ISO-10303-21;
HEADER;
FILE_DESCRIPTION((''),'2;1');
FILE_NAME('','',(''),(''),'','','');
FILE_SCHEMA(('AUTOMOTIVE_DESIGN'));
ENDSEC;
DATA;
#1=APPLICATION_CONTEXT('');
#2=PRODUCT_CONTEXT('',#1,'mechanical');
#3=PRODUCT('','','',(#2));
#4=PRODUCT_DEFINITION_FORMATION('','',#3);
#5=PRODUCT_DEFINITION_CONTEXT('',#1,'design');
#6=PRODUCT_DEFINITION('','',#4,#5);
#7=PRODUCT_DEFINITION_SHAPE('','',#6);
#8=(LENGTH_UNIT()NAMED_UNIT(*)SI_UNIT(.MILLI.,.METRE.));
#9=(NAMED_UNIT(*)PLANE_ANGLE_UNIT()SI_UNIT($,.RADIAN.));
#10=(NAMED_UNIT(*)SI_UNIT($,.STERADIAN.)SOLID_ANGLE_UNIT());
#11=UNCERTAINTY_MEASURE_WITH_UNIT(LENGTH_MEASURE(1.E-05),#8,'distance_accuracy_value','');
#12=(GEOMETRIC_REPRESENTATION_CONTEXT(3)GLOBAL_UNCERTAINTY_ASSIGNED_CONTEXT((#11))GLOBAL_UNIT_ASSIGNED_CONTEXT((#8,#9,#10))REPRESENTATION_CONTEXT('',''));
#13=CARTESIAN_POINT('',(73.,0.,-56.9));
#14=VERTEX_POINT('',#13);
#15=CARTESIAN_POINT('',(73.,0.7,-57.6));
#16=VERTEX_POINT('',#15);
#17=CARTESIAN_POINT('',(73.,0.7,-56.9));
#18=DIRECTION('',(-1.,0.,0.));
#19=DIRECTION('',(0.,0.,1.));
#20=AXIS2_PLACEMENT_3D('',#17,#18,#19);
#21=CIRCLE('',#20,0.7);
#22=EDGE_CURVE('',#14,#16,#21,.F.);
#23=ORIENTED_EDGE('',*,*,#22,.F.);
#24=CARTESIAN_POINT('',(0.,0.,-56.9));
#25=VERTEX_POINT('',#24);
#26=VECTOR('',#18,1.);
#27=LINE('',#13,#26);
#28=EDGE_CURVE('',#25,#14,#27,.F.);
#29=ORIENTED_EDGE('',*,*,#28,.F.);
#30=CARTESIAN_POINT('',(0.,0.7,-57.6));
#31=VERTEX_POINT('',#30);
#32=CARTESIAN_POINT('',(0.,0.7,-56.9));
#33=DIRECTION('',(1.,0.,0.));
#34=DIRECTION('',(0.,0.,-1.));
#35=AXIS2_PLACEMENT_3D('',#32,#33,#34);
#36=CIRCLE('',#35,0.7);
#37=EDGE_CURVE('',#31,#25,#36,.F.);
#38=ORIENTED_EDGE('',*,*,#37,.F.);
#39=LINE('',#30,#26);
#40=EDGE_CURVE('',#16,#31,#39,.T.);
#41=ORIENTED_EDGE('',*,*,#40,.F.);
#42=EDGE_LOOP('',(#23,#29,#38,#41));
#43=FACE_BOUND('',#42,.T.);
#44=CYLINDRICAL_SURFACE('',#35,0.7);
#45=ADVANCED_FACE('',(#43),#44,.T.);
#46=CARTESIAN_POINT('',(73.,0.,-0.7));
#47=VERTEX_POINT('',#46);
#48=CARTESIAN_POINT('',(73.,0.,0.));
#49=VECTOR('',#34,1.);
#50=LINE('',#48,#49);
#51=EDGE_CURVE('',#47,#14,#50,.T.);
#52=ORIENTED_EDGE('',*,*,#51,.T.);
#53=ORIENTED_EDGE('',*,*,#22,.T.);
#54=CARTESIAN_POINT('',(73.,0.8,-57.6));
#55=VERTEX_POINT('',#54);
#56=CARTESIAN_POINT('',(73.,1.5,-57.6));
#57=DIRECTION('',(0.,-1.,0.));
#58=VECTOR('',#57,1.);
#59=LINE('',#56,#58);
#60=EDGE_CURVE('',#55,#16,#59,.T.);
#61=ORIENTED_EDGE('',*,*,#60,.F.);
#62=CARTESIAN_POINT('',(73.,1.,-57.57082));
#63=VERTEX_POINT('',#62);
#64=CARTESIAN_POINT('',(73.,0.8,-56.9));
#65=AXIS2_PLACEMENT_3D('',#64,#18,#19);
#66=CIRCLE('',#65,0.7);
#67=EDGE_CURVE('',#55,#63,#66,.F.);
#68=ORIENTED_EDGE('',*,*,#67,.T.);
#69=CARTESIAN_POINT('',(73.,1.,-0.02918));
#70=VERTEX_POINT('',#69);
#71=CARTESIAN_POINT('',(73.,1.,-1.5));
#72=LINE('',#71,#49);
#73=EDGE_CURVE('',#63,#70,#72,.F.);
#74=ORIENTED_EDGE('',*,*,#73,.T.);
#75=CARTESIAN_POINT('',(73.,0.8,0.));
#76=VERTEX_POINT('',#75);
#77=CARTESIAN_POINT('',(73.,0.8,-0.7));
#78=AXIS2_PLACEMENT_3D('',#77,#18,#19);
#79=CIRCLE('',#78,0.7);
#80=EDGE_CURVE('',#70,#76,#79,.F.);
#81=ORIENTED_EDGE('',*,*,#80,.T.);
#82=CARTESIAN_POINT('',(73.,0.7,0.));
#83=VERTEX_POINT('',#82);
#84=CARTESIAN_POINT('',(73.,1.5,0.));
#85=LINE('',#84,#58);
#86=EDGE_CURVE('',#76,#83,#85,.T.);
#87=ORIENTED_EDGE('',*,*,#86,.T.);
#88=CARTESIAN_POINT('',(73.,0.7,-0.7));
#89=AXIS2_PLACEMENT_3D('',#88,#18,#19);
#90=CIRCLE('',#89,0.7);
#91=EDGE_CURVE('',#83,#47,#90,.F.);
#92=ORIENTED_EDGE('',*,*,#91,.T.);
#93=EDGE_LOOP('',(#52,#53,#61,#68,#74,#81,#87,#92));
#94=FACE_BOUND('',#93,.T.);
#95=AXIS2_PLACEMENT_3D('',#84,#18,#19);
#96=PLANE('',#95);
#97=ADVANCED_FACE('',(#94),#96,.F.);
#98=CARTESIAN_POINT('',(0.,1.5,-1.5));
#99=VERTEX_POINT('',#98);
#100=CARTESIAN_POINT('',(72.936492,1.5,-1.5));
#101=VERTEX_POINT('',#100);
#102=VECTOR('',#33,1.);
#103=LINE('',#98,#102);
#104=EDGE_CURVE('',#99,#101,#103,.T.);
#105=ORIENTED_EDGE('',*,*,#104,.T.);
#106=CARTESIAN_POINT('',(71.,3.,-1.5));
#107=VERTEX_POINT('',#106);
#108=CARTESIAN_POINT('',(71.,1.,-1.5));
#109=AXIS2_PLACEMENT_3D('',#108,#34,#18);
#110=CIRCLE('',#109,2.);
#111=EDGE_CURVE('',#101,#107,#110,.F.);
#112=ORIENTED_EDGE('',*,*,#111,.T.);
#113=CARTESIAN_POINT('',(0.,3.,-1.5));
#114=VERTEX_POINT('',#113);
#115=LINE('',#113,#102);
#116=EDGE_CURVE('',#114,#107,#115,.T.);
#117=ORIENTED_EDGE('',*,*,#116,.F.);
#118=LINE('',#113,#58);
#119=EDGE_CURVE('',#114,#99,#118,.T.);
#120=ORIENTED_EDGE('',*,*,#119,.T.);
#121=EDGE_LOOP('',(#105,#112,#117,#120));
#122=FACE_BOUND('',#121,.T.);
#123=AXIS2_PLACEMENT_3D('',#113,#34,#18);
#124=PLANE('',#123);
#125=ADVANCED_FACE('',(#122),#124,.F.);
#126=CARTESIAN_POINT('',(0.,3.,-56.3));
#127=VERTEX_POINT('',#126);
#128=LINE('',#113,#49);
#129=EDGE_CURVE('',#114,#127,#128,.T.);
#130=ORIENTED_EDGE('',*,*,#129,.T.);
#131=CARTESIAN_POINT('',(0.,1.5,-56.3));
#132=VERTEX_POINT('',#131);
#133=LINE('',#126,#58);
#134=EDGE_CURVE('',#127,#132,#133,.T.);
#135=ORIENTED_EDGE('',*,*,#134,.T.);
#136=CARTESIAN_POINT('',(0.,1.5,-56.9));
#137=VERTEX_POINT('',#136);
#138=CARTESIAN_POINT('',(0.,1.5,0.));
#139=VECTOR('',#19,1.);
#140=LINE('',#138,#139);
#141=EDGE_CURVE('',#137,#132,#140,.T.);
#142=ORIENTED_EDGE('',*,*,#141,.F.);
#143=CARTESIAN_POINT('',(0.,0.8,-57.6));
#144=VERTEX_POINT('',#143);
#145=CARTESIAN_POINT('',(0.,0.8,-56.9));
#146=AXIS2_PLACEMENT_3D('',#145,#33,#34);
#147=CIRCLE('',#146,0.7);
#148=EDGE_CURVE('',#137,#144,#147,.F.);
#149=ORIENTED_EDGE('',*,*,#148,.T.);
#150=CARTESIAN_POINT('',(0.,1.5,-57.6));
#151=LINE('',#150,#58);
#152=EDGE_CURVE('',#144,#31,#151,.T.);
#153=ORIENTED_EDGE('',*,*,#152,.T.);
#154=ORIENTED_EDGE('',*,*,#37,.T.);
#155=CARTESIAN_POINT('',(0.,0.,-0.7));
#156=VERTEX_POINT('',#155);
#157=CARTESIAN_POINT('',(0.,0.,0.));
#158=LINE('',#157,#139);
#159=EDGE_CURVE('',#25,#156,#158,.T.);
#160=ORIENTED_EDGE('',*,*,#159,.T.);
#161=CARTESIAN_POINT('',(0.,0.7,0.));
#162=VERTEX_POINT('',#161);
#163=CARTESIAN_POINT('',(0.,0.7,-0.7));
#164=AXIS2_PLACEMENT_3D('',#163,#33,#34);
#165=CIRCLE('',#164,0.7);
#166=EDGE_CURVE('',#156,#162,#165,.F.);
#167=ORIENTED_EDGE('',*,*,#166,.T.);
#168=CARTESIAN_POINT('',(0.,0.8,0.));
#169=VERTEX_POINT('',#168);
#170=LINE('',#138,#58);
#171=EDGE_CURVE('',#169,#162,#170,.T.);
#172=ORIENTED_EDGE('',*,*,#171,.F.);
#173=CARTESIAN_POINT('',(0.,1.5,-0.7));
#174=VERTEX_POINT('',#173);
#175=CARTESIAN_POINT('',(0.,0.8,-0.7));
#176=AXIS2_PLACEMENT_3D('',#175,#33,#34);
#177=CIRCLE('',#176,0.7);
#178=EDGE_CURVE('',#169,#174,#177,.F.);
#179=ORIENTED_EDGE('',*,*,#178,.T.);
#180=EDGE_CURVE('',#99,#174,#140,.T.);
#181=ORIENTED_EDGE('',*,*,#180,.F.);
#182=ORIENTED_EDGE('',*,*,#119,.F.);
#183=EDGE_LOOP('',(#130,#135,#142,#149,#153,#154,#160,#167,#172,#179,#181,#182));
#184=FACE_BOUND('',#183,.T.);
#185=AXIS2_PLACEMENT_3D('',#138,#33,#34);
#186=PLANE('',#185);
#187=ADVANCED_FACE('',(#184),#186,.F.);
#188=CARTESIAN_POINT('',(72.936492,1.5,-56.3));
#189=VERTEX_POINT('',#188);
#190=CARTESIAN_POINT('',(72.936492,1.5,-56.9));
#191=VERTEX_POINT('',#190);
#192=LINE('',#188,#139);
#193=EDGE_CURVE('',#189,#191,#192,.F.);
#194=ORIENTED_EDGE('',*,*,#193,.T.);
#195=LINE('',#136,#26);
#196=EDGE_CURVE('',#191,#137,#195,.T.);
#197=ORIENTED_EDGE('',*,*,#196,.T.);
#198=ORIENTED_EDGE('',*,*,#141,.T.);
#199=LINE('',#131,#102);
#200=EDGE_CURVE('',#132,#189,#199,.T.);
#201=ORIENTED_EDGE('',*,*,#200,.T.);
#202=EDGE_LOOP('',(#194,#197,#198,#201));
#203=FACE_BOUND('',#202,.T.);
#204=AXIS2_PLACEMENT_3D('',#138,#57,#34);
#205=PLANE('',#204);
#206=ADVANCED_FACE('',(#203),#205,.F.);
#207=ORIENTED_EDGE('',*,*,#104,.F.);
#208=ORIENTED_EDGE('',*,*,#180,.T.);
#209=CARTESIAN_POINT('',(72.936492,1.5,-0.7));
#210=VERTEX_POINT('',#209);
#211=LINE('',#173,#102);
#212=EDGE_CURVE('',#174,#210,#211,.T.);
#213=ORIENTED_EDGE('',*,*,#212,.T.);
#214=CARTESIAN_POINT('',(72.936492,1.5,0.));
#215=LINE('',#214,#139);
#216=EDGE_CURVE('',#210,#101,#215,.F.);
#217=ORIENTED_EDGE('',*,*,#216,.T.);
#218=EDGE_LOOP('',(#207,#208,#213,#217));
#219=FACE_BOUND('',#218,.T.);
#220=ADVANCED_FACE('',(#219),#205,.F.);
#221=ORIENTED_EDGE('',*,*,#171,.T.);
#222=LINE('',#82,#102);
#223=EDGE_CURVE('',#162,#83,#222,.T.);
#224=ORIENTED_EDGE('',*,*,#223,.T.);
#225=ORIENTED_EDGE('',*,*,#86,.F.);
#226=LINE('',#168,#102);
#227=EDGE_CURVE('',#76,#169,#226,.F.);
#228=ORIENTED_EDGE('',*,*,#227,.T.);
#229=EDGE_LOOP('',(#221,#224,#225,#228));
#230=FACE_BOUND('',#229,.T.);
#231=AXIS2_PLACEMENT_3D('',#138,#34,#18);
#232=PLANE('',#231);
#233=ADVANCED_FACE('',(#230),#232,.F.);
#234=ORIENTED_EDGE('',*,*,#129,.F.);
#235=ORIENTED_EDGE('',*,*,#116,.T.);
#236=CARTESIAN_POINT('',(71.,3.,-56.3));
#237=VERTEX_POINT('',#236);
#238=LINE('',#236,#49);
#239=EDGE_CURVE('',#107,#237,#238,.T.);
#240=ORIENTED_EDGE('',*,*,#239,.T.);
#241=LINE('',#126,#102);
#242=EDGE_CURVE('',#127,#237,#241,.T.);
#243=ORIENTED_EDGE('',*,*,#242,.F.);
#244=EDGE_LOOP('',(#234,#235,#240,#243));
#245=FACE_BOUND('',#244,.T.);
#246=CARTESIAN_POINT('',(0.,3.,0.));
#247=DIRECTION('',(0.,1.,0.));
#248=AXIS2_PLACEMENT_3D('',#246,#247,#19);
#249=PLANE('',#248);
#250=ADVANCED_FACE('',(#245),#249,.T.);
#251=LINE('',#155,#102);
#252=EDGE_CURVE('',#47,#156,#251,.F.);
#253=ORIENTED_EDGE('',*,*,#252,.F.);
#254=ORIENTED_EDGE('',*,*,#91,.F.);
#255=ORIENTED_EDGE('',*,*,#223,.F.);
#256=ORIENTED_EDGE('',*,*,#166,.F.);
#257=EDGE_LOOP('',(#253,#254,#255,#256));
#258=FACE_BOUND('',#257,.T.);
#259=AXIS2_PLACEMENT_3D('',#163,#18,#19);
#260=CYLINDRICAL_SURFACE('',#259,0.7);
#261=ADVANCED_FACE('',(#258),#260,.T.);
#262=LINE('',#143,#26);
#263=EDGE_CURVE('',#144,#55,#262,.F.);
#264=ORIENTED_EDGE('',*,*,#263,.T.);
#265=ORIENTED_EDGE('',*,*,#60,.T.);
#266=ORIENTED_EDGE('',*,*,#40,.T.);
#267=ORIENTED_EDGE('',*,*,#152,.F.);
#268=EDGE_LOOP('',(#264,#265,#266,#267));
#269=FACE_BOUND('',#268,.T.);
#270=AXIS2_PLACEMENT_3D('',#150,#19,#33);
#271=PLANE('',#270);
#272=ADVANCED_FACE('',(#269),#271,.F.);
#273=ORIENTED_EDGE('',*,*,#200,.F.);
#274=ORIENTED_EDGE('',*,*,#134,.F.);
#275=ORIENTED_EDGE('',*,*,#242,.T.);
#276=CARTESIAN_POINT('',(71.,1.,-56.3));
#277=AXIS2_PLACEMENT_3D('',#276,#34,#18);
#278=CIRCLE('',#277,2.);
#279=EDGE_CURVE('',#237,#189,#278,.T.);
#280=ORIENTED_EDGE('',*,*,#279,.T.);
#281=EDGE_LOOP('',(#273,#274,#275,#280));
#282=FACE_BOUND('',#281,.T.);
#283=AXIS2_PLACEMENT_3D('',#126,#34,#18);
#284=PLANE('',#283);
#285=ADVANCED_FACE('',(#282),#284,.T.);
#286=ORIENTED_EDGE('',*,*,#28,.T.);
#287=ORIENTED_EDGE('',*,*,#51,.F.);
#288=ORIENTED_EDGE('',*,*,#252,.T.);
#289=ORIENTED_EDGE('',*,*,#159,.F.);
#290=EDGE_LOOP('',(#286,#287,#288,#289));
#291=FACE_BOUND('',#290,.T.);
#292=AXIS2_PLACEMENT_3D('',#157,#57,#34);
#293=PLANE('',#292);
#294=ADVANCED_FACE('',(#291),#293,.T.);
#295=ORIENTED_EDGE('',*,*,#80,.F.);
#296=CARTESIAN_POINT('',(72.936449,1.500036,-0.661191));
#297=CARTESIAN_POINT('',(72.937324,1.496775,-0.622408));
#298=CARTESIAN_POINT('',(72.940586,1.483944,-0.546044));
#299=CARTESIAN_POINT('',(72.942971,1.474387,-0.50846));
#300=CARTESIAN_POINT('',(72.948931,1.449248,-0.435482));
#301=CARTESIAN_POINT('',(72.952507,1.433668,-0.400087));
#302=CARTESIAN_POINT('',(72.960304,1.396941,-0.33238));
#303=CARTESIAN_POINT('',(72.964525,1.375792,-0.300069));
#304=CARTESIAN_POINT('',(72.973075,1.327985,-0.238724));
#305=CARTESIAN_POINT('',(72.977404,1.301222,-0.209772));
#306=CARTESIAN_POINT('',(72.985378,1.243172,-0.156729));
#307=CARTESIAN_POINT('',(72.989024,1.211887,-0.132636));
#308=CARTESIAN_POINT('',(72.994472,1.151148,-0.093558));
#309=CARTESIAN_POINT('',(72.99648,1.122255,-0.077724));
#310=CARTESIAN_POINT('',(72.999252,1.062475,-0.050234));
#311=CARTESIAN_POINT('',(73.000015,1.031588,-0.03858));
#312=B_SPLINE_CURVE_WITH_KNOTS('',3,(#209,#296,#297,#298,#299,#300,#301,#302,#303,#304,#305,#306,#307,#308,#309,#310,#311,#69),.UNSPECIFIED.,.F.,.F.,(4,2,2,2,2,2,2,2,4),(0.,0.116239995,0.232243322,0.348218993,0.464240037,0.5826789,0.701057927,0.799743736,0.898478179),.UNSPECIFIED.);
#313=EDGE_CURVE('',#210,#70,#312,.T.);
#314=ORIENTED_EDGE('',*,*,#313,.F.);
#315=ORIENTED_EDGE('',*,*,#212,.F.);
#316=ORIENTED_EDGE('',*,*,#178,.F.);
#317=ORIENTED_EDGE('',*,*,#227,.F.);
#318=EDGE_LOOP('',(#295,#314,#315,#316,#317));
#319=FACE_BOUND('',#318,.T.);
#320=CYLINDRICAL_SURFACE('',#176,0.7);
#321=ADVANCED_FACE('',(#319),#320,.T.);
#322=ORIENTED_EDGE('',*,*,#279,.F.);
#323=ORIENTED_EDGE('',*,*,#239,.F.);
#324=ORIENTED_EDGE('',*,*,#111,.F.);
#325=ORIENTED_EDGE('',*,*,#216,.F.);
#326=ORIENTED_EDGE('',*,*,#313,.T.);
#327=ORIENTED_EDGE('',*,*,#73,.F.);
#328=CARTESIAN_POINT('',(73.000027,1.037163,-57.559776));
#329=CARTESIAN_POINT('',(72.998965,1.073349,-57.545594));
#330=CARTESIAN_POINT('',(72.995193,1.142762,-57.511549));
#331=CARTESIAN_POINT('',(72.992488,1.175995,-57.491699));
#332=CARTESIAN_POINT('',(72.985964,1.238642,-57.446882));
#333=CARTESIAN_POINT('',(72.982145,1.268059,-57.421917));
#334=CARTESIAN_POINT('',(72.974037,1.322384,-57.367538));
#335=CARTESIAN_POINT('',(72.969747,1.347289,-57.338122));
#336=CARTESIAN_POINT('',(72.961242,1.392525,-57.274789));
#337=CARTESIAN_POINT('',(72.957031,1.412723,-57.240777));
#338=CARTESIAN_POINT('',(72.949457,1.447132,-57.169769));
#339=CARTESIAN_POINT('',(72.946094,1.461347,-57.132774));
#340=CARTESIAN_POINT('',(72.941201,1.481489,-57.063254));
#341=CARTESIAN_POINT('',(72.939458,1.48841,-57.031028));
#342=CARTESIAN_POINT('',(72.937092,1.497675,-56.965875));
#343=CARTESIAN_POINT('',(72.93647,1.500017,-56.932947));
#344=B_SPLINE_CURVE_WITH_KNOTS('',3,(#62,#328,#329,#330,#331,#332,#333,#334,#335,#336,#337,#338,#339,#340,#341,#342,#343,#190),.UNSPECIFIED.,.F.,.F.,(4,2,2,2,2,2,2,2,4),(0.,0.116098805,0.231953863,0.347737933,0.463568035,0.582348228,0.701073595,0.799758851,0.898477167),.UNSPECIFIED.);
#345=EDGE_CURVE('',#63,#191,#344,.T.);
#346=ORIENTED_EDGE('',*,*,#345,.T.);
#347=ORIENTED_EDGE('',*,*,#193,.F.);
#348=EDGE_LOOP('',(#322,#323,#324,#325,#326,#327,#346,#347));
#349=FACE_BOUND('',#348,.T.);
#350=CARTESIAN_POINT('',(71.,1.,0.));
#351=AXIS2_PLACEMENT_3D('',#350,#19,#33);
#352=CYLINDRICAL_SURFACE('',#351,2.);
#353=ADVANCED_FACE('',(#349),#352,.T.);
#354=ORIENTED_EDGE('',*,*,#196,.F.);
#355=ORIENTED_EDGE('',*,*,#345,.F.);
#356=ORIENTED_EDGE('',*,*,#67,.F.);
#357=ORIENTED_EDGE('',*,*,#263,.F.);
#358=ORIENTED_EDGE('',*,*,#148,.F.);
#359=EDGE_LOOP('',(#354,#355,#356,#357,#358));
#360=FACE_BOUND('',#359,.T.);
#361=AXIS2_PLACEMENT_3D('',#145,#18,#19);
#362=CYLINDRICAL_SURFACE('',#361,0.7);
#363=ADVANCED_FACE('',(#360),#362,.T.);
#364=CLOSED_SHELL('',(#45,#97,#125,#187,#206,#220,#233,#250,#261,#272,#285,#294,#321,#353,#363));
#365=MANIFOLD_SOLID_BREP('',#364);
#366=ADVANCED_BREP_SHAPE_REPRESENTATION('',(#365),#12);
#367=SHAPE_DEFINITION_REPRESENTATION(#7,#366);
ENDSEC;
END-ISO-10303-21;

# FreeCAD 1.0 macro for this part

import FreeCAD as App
import Part
import Sketcher


def edges_at(feature, points):
    """Names of the edges that pass closest to the given points."""
    edges = feature.Shape.Edges
    near = lambda p: min(range(len(edges)), key=lambda i: edges[i].distToShape(Part.Vertex(*p))[0])
    return sorted({f"Edge{near(p) + 1}" for p in points})


def add_polygon(sketch, points):
    """Adds a closed chain of lines whose ends are joined by coincident constraints."""
    first, n = sketch.GeometryCount, len(points)
    for a, b in zip(points, points[1:] + points[:1]):
        sketch.addGeometry(Part.LineSegment(App.Vector(*a, 0), App.Vector(*b, 0)), False)
    for i in range(n):
        sketch.addConstraint(Sketcher.Constraint("Coincident", first + i, 2, first + (i + 1) % n, 1))

doc = App.newDocument("Part")
body = doc.addObject("PartDesign::Body", "Body")

sketch1 = body.newObject("Sketcher::SketchObject", "Sketch")
sketch1.AttachmentSupport = (doc.getObject("XZ_Plane"), [""])
sketch1.MapMode = "FlatFace"
add_polygon(sketch1, [(0, -58), (0, 0), (73, 0), (73, -58)])
sketch1.addConstraint(Sketcher.Constraint("Vertical", 0))
sketch1.addConstraint(Sketcher.Constraint("Horizontal", 1))
sketch1.addConstraint(Sketcher.Constraint("Vertical", 2))
sketch1.addConstraint(Sketcher.Constraint("Horizontal", 3))
sketch1.addConstraint(Sketcher.Constraint("Coincident", 0, 2, -1, 1))
sketch1.addConstraint(Sketcher.Constraint("DistanceX", 1, 1, 1, 2, 73.0))
sketch1.addConstraint(Sketcher.Constraint("DistanceY", 0, 1, 0, 2, 57.6))
pad1 = body.newObject("PartDesign::Pad", "Pad")
pad1.Profile = sketch1
pad1.Length = 1.5
pad1.Reversed = True

sketch2 = body.newObject("Sketcher::SketchObject", "Sketch001")
sketch2.AttachmentSupport = (doc.getObject("XZ_Plane"), [""])
sketch2.MapMode = "FlatFace"
add_polygon(sketch2, [(0, -56), (0, -2), (73, -2), (73, -56)])
sketch2.addConstraint(Sketcher.Constraint("Vertical", 0))
sketch2.addConstraint(Sketcher.Constraint("Horizontal", 1))
sketch2.addConstraint(Sketcher.Constraint("Vertical", 2))
sketch2.addConstraint(Sketcher.Constraint("Horizontal", 3))
sketch2.addConstraint(Sketcher.Constraint("PointOnObject", 0, 2, -2))
sketch2.addConstraint(Sketcher.Constraint("DistanceX", 1, 1, 1, 2, 73.0))
sketch2.addConstraint(Sketcher.Constraint("DistanceY", 0, 1, 0, 2, 54.8))
sketch2.addConstraint(Sketcher.Constraint("DistanceY", 0, 2, -1, 1, 1.5))
pad2 = body.newObject("PartDesign::Pad", "Pad001")
pad2.Profile = sketch2
pad2.Length = 3
pad2.Reversed = True
doc.recompute()

fillet = body.newObject("PartDesign::Fillet", "Fillet")
fillet.Base = (pad2, edges_at(pad2, [(73, 3, -28.9)]))
fillet.Radius = 2
doc.recompute()

fillet2 = body.newObject("PartDesign::Fillet", "Fillet001")
fillet2.Base = (fillet, edges_at(fillet, [(36.5, 0, 0), (36.468, 1.5, 0)]))
fillet2.Radius = 0.7
doc.recompute()

fillet3 = body.newObject("PartDesign::Fillet", "Fillet002")
fillet3.Base = (fillet2, edges_at(fillet2, [(36.5, 0, -57.6), (36.468, 1.5, -57.6)]))
fillet3.Radius = 0.7

doc.recompute()
